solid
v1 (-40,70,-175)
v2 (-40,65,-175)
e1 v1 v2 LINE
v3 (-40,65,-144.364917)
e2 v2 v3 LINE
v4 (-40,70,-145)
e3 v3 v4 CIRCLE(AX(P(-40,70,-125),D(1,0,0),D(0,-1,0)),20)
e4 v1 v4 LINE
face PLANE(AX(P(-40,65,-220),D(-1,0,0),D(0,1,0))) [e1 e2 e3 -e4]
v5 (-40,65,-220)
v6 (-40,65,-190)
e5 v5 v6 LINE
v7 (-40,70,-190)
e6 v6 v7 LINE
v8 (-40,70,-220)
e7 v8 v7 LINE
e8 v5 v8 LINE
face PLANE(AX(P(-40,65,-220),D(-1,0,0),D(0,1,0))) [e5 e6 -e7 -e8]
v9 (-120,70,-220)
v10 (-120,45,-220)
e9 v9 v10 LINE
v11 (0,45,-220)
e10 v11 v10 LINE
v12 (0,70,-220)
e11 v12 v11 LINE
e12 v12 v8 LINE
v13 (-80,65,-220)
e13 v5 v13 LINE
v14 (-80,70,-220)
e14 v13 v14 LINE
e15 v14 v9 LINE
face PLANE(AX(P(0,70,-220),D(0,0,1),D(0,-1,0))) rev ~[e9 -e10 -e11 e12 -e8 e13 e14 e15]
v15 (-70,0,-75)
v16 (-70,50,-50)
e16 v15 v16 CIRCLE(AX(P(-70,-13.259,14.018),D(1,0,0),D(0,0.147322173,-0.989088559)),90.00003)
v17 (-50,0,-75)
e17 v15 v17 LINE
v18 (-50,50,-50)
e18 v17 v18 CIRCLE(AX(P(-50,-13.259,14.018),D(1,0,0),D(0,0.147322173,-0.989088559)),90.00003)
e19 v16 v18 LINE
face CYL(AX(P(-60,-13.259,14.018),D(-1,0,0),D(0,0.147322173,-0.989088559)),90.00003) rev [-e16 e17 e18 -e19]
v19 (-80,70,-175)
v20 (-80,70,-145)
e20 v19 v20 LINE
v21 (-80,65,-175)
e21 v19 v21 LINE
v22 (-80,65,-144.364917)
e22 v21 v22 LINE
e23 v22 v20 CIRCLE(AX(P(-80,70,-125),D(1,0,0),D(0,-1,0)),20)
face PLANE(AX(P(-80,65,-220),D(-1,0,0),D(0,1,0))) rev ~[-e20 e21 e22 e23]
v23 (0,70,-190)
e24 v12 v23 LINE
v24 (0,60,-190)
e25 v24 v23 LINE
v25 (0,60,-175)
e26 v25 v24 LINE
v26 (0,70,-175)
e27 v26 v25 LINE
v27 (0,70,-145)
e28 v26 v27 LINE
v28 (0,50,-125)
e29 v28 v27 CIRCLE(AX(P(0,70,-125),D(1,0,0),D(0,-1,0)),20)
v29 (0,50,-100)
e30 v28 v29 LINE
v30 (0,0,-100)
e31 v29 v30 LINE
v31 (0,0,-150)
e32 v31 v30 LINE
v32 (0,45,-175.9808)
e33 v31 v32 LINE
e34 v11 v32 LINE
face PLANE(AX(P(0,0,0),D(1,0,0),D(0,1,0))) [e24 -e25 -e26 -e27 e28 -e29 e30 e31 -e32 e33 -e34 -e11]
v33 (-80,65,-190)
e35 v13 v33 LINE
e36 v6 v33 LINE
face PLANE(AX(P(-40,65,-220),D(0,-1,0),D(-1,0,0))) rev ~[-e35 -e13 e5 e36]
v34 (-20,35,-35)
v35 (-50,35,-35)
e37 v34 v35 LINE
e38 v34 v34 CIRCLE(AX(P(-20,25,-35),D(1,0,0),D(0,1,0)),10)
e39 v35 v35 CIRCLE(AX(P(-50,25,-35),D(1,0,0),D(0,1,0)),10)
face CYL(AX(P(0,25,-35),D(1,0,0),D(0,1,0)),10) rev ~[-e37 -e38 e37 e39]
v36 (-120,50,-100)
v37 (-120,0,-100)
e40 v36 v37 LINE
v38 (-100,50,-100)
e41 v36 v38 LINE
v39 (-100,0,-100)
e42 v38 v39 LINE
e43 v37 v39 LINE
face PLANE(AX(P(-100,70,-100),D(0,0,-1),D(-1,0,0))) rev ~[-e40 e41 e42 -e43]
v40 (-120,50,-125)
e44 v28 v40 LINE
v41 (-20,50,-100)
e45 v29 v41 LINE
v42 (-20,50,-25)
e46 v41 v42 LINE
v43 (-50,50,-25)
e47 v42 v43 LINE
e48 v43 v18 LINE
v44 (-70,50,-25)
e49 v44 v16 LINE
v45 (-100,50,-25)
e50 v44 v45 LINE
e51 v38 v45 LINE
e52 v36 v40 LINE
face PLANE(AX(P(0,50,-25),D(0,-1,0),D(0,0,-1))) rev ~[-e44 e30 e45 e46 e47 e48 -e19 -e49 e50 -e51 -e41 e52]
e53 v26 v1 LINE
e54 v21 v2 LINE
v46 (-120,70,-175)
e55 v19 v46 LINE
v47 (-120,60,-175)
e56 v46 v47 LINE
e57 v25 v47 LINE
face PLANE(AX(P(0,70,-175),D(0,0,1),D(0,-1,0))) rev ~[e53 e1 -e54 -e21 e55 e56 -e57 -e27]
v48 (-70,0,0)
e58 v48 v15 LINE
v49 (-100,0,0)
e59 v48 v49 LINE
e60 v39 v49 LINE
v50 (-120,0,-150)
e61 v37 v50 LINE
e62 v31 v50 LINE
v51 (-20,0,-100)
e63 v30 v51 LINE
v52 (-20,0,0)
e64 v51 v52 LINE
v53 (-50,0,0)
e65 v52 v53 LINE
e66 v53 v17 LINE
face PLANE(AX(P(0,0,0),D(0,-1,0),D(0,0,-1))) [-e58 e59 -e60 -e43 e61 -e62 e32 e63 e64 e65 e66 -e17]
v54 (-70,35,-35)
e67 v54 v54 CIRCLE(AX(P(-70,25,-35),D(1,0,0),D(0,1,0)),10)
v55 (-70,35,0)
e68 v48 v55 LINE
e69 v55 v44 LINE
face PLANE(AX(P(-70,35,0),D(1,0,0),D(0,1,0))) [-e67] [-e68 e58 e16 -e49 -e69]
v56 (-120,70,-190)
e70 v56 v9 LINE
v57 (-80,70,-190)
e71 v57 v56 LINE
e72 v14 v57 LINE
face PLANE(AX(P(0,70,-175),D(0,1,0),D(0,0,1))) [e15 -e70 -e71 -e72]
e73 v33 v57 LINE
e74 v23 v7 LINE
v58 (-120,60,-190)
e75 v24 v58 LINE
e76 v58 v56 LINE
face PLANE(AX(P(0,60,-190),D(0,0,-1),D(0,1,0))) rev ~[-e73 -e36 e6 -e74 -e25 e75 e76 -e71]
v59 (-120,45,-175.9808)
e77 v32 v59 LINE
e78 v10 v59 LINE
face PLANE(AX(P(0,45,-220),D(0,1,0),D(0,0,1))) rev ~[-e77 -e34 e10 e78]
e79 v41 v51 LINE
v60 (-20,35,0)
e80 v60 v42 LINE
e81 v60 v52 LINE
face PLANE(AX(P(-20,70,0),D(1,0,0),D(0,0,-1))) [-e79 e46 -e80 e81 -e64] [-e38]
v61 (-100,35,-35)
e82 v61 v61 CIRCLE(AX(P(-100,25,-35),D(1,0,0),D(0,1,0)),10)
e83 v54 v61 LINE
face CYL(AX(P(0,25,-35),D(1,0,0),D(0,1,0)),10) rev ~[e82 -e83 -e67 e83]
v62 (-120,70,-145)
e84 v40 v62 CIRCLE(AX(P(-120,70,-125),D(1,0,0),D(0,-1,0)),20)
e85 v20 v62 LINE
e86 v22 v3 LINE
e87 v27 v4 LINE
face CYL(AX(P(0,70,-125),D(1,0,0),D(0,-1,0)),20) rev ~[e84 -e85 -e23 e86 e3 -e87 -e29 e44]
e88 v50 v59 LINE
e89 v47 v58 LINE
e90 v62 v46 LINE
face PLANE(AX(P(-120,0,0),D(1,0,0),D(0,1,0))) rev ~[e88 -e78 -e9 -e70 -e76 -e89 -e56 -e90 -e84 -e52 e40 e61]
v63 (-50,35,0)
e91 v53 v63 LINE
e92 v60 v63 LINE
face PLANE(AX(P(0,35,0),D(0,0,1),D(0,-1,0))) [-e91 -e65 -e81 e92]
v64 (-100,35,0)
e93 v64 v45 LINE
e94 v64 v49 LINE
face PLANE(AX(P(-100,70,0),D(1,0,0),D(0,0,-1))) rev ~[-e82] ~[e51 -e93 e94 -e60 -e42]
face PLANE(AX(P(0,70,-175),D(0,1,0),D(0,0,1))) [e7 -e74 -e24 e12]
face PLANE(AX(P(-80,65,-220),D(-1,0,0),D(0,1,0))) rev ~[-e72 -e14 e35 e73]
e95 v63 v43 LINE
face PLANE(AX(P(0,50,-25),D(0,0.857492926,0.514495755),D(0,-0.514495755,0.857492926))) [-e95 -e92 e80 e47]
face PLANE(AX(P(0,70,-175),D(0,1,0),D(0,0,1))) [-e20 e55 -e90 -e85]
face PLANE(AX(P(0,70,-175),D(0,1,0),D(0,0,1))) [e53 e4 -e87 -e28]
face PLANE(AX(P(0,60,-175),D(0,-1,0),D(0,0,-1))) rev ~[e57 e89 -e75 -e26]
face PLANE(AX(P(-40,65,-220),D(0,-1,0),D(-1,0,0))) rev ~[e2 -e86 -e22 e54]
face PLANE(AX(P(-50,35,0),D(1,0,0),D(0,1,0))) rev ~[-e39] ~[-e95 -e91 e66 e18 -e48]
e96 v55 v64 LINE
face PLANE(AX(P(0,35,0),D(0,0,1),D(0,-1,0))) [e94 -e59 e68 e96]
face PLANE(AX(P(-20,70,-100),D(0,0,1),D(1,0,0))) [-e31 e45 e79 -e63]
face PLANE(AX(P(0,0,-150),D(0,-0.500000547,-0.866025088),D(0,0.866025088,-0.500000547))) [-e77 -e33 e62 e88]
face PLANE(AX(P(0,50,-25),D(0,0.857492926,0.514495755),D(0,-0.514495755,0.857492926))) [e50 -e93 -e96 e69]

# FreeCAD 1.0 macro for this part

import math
import FreeCAD as App
import Part
import Sketcher
from FreeCAD import Vector
Q = App.Units.Quantity

doc = App.newDocument("Part")
params = doc.addObject("Spreadsheet::Sheet", "Params")
for row, (alias, value) in enumerate([
    ("sketch1_diameter", "20 mm"),
    ("sketch1_radius", "20 mm"),
    ("sketch1_width", "35 mm"),
    ("sketch1_width2", "25 mm"),
    ("sketch1_height", "150 mm"),
    ("pad1_length", "120 mm"),
    ("sketch2_height", "100 mm"),
    ("pocket1_length", "120 mm"),
    ("sketch3_width", "10 mm"),
    ("sketch3_height", "15 mm"),
    ("pocket2_length", "120 mm"),
    ("sketch4_radius", "90 mm"),
    ("sketch4_height", "75 mm"),
    ("sketch4_height2", "25 mm"),
    ("sketch4_width", "35 mm"),
    ("pocket3_length", "20 mm"),
    ("sketch5_width", "40 mm"),
    ("sketch5_height", "5 mm"),
    ("pocket4_length", "200 mm"),
], start=1):
    params.set(f"A{row}", alias)
    params.set(f"B{row}", "=" + value)
    params.setAlias(f"B{row}", alias)

body = doc.addObject("PartDesign::Body", "Body")

sketch1 = body.newObject("Sketcher::SketchObject", "Sketch")
sketch1.AttachmentSupport = (doc.getObject("YZ_Plane"), [""])
sketch1.MapMode = "FlatFace"
sketch1.addGeometry(Part.LineSegment(Vector(35, 0, 0), Vector(0, 0, 0)), False)
sketch1.addGeometry(Part.LineSegment(Vector(0, 0, 0), Vector(0, -150, 0)), False)
sketch1.addGeometry(Part.LineSegment(Vector(0, -150, 0), Vector(45, -176, 0)), False)
sketch1.addGeometry(Part.LineSegment(Vector(45, -176, 0), Vector(45, -220, 0)), False)
sketch1.addGeometry(Part.LineSegment(Vector(45, -220, 0), Vector(70, -220, 0)), False)
sketch1.addGeometry(Part.LineSegment(Vector(70, -220, 0), Vector(70, -145, 0)), False)
sketch1.addGeometry(Part.ArcOfCircle(Part.Circle(Vector(70, -125, 0), Vector(0, 0, 1), 20), math.radians(180), math.radians(270)), False)
sketch1.addGeometry(Part.LineSegment(Vector(50, -125, 0), Vector(50, -25, 0)), False)
sketch1.addGeometry(Part.LineSegment(Vector(50, -25, 0), Vector(35, 0, 0)), False)
sketch1.addGeometry(Part.Circle(Vector(25, -35, 0), Vector(0, 0, 1), 10), False)
sketch1.addConstraint(Sketcher.Constraint("Coincident", 0, 2, 1, 1))
sketch1.addConstraint(Sketcher.Constraint("Coincident", 1, 2, 2, 1))
sketch1.addConstraint(Sketcher.Constraint("Coincident", 2, 2, 3, 1))
sketch1.addConstraint(Sketcher.Constraint("Coincident", 3, 2, 4, 1))
sketch1.addConstraint(Sketcher.Constraint("Coincident", 4, 2, 5, 1))
sketch1.addConstraint(Sketcher.Constraint("Coincident", 5, 2, 6, 2))
sketch1.addConstraint(Sketcher.Constraint("Tangent", 6, 1, 7, 1))
sketch1.addConstraint(Sketcher.Constraint("Coincident", 7, 2, 8, 1))
sketch1.addConstraint(Sketcher.Constraint("Coincident", 8, 2, 0, 1))
sketch1.addConstraint(Sketcher.Constraint("Horizontal", 0))
sketch1.addConstraint(Sketcher.Constraint("Vertical", 1))
sketch1.addConstraint(Sketcher.Constraint("Vertical", 3))
sketch1.addConstraint(Sketcher.Constraint("Horizontal", 4))
sketch1.addConstraint(Sketcher.Constraint("Vertical", 5))
sketch1.addConstraint(Sketcher.Constraint("Vertical", 7))
sketch1.addConstraint(Sketcher.Constraint("Coincident", 0, 2, -1, 1))
sketch1.addConstraint(Sketcher.Constraint("Vertical", 6, 3, 4, 2))
sketch1.addConstraint(Sketcher.Constraint("Diameter", 9, Q("20 mm")))
sketch1.addConstraint(Sketcher.Constraint("Radius", 6, Q("20 mm")))
sketch1.addConstraint(Sketcher.Constraint("DistanceX", 0, 2, 0, 1, Q("35 mm")))
sketch1.addConstraint(Sketcher.Constraint("DistanceX", 4, 1, 4, 2, Q("25 mm")))
sketch1.addConstraint(Sketcher.Constraint("DistanceY", 1, 2, 1, 1, Q("150 mm")))
sketch1.addConstraint(Sketcher.Constraint("DistanceY", 5, 1, 5, 2, Q("75 mm")))
sketch1.addConstraint(Sketcher.Constraint("Angle", 2, Q("-30 deg")))
sketch1.addConstraint(Sketcher.Constraint("DistanceX", -1, 1, 6, 3, Q("70 mm")))
sketch1.addConstraint(Sketcher.Constraint("DistanceX", -1, 1, 9, 3, Q("25 mm")))
sketch1.addConstraint(Sketcher.Constraint("DistanceY", 9, 3, -1, 1, Q("35 mm")))
sketch1.addConstraint(Sketcher.Constraint("DistanceY", 3, 2, -1, 1, Q("220 mm")))
sketch1.addConstraint(Sketcher.Constraint("DistanceY", 7, 2, -1, 1, Q("25 mm")))
sketch1.setExpression("Constraints[17]", "Params.sketch1_diameter")
sketch1.setExpression("Constraints[18]", "Params.sketch1_radius")
sketch1.setExpression("Constraints[19]", "Params.sketch1_width")
sketch1.setExpression("Constraints[20]", "Params.sketch1_width2")
sketch1.setExpression("Constraints[21]", "Params.sketch1_height")
pad1 = body.newObject("PartDesign::Pad", "Pad")
pad1.Profile = sketch1
pad1.setExpression("Length", "Params.pad1_length")
pad1.Reversed = True

sketch2 = body.newObject("Sketcher::SketchObject", "Sketch001")
sketch2.AttachmentSupport = (doc.getObject("XZ_Plane"), [""])
sketch2.MapMode = "FlatFace"
sketch2.AttachmentOffset = App.Placement(Vector(0, 0, -70), App.Rotation())
sketch2.addGeometry(Part.LineSegment(Vector(-20, 0, 0), Vector(0, 0, 0)), False)
sketch2.addGeometry(Part.LineSegment(Vector(0, 0, 0), Vector(0, -100, 0)), False)
sketch2.addGeometry(Part.LineSegment(Vector(0, -100, 0), Vector(-20, -100, 0)), False)
sketch2.addGeometry(Part.LineSegment(Vector(-20, -100, 0), Vector(-20, 0, 0)), False)
sketch2.addGeometry(Part.LineSegment(Vector(-120, 0, 0), Vector(-100, 0, 0)), False)
sketch2.addGeometry(Part.LineSegment(Vector(-100, 0, 0), Vector(-100, -100, 0)), False)
sketch2.addGeometry(Part.LineSegment(Vector(-100, -100, 0), Vector(-120, -100, 0)), False)
sketch2.addGeometry(Part.LineSegment(Vector(-120, -100, 0), Vector(-120, 0, 0)), False)
sketch2.addConstraint(Sketcher.Constraint("Coincident", 0, 2, 1, 1))
sketch2.addConstraint(Sketcher.Constraint("Coincident", 1, 2, 2, 1))
sketch2.addConstraint(Sketcher.Constraint("Coincident", 2, 2, 3, 1))
sketch2.addConstraint(Sketcher.Constraint("Coincident", 3, 2, 0, 1))
sketch2.addConstraint(Sketcher.Constraint("Coincident", 4, 2, 5, 1))
sketch2.addConstraint(Sketcher.Constraint("Coincident", 5, 2, 6, 1))
sketch2.addConstraint(Sketcher.Constraint("Coincident", 6, 2, 7, 1))
sketch2.addConstraint(Sketcher.Constraint("Coincident", 7, 2, 4, 1))
sketch2.addConstraint(Sketcher.Constraint("Horizontal", 0))
sketch2.addConstraint(Sketcher.Constraint("Vertical", 1))
sketch2.addConstraint(Sketcher.Constraint("Horizontal", 2))
sketch2.addConstraint(Sketcher.Constraint("Vertical", 3))
sketch2.addConstraint(Sketcher.Constraint("Horizontal", 4))
sketch2.addConstraint(Sketcher.Constraint("Vertical", 5))
sketch2.addConstraint(Sketcher.Constraint("Horizontal", 6))
sketch2.addConstraint(Sketcher.Constraint("Vertical", 7))
sketch2.addConstraint(Sketcher.Constraint("Coincident", 0, 2, -1, 1))
sketch2.addConstraint(Sketcher.Constraint("PointOnObject", 4, 2, -1))
sketch2.addConstraint(Sketcher.Constraint("Horizontal", 2, 2, 5, 2))
sketch2.addConstraint(Sketcher.Constraint("Equal", 2, 4))
sketch2.addConstraint(Sketcher.Constraint("DistanceY", 1, 2, 1, 1, Q("100 mm")))
sketch2.addConstraint(Sketcher.Constraint("DistanceX", 4, 2, -1, 1, Q("100 mm")))
sketch2.addConstraint(Sketcher.Constraint("DistanceX", 4, 2, 3, 2, Q("80 mm")))
sketch2.setExpression("Constraints[20]", "Params.sketch2_height")
pocket1 = body.newObject("PartDesign::Pocket", "Pocket")
pocket1.Profile = sketch2
pocket1.setExpression("Length", "Params.pocket1_length")
pocket1.Reversed = True

sketch3 = body.newObject("Sketcher::SketchObject", "Sketch002")
sketch3.AttachmentSupport = (doc.getObject("YZ_Plane"), [""])
sketch3.MapMode = "FlatFace"
sketch3.addGeometry(Part.LineSegment(Vector(70, -190, 0), Vector(70, -175, 0)), False)
sketch3.addGeometry(Part.LineSegment(Vector(70, -175, 0), Vector(60, -175, 0)), False)
sketch3.addGeometry(Part.LineSegment(Vector(60, -175, 0), Vector(60, -190, 0)), False)
sketch3.addGeometry(Part.LineSegment(Vector(60, -190, 0), Vector(70, -190, 0)), False)
sketch3.addConstraint(Sketcher.Constraint("Coincident", 0, 2, 1, 1))
sketch3.addConstraint(Sketcher.Constraint("Coincident", 1, 2, 2, 1))
sketch3.addConstraint(Sketcher.Constraint("Coincident", 2, 2, 3, 1))
sketch3.addConstraint(Sketcher.Constraint("Coincident", 3, 2, 0, 1))
sketch3.addConstraint(Sketcher.Constraint("Vertical", 0))
sketch3.addConstraint(Sketcher.Constraint("Horizontal", 1))
sketch3.addConstraint(Sketcher.Constraint("Vertical", 2))
sketch3.addConstraint(Sketcher.Constraint("Horizontal", 3))
sketch3.addConstraint(Sketcher.Constraint("DistanceX", 1, 2, 1, 1, Q("10 mm")))
sketch3.addConstraint(Sketcher.Constraint("DistanceY", 0, 1, 0, 2, Q("15 mm")))
sketch3.addConstraint(Sketcher.Constraint("DistanceX", -1, 1, 0, 2, Q("70 mm")))
sketch3.addConstraint(Sketcher.Constraint("DistanceY", 0, 2, -1, 1, Q("175 mm")))
sketch3.setExpression("Constraints[8]", "Params.sketch3_width")
sketch3.setExpression("Constraints[9]", "Params.sketch3_height")
pocket2 = body.newObject("PartDesign::Pocket", "Pocket001")
pocket2.Profile = sketch3
pocket2.setExpression("Length", "Params.pocket2_length")

sketch4 = body.newObject("Sketcher::SketchObject", "Sketch003")
sketch4.AttachmentSupport = (doc.getObject("YZ_Plane"), [""])
sketch4.MapMode = "FlatFace"
sketch4.AttachmentOffset = App.Placement(Vector(0, 0, -60), App.Rotation())
sketch4.addGeometry(Part.LineSegment(Vector(35, 0, 0), Vector(0, 0, 0)), False)
sketch4.addGeometry(Part.LineSegment(Vector(0, 0, 0), Vector(0, -75, 0)), False)
sketch4.addGeometry(Part.ArcOfCircle(Part.Circle(Vector(-13, 14, 0), Vector(0, 0, 1), 90), math.radians(-82), math.radians(-45)), False)
sketch4.addGeometry(Part.LineSegment(Vector(50, -50, 0), Vector(50, -25, 0)), False)
sketch4.addGeometry(Part.LineSegment(Vector(50, -25, 0), Vector(35, 0, 0)), False)
sketch4.addConstraint(Sketcher.Constraint("Coincident", 0, 2, 1, 1))
sketch4.addConstraint(Sketcher.Constraint("Coincident", 1, 2, 2, 1))
sketch4.addConstraint(Sketcher.Constraint("Coincident", 2, 2, 3, 1))
sketch4.addConstraint(Sketcher.Constraint("Coincident", 3, 2, 4, 1))
sketch4.addConstraint(Sketcher.Constraint("Coincident", 4, 2, 0, 1))
sketch4.addConstraint(Sketcher.Constraint("Horizontal", 0))
sketch4.addConstraint(Sketcher.Constraint("Vertical", 1))
sketch4.addConstraint(Sketcher.Constraint("Vertical", 3))
sketch4.addConstraint(Sketcher.Constraint("Coincident", 0, 2, -1, 1))
sketch4.addConstraint(Sketcher.Constraint("Radius", 2, Q("90 mm")))
sketch4.addConstraint(Sketcher.Constraint("DistanceY", 1, 2, 1, 1, Q("75 mm")))
sketch4.addConstraint(Sketcher.Constraint("DistanceY", 3, 1, 3, 2, Q("25 mm")))
sketch4.addConstraint(Sketcher.Constraint("DistanceX", -1, 1, 2, 2, Q("50 mm")))
sketch4.addConstraint(Sketcher.Constraint("DistanceY", 2, 2, -1, 1, Q("50 mm")))
sketch4.addConstraint(Sketcher.Constraint("DistanceX", 0, 2, 0, 1, Q("35 mm")))
sketch4.setExpression("Constraints[9]", "Params.sketch4_radius")
sketch4.setExpression("Constraints[10]", "Params.sketch4_height")
sketch4.setExpression("Constraints[11]", "Params.sketch4_height2")
sketch4.setExpression("Constraints[14]", "Params.sketch4_width")
pocket3 = body.newObject("PartDesign::Pocket", "Pocket002")
pocket3.Profile = sketch4
pocket3.setExpression("Length", "Params.pocket3_length")
pocket3.Midplane = True

sketch5 = body.newObject("Sketcher::SketchObject", "Sketch004")
sketch5.AttachmentSupport = (doc.getObject("XY_Plane"), [""])
sketch5.MapMode = "FlatFace"
sketch5.AttachmentOffset = App.Placement(Vector(0, 0, -220), App.Rotation())
sketch5.addGeometry(Part.LineSegment(Vector(-80, 70, 0), Vector(-40, 70, 0)), False)
sketch5.addGeometry(Part.LineSegment(Vector(-40, 70, 0), Vector(-40, 65, 0)), False)
sketch5.addGeometry(Part.LineSegment(Vector(-40, 65, 0), Vector(-80, 65, 0)), False)
sketch5.addGeometry(Part.LineSegment(Vector(-80, 65, 0), Vector(-80, 70, 0)), False)
sketch5.addConstraint(Sketcher.Constraint("Coincident", 0, 2, 1, 1))
sketch5.addConstraint(Sketcher.Constraint("Coincident", 1, 2, 2, 1))
sketch5.addConstraint(Sketcher.Constraint("Coincident", 2, 2, 3, 1))
sketch5.addConstraint(Sketcher.Constraint("Coincident", 3, 2, 0, 1))
sketch5.addConstraint(Sketcher.Constraint("Horizontal", 0))
sketch5.addConstraint(Sketcher.Constraint("Vertical", 1))
sketch5.addConstraint(Sketcher.Constraint("Horizontal", 2))
sketch5.addConstraint(Sketcher.Constraint("Vertical", 3))
sketch5.addConstraint(Sketcher.Constraint("DistanceX", 0, 1, 0, 2, Q("40 mm")))
sketch5.addConstraint(Sketcher.Constraint("DistanceY", 1, 2, 1, 1, Q("5 mm")))
sketch5.addConstraint(Sketcher.Constraint("DistanceX", 0, 2, -1, 1, Q("40 mm")))
sketch5.addConstraint(Sketcher.Constraint("DistanceY", -1, 1, 0, 2, Q("70 mm")))
sketch5.setExpression("Constraints[8]", "Params.sketch5_width")
sketch5.setExpression("Constraints[9]", "Params.sketch5_height")
pocket4 = body.newObject("PartDesign::Pocket", "Pocket003")
pocket4.Profile = sketch5
pocket4.setExpression("Length", "Params.pocket4_length")
pocket4.Reversed = True

doc.recompute()
